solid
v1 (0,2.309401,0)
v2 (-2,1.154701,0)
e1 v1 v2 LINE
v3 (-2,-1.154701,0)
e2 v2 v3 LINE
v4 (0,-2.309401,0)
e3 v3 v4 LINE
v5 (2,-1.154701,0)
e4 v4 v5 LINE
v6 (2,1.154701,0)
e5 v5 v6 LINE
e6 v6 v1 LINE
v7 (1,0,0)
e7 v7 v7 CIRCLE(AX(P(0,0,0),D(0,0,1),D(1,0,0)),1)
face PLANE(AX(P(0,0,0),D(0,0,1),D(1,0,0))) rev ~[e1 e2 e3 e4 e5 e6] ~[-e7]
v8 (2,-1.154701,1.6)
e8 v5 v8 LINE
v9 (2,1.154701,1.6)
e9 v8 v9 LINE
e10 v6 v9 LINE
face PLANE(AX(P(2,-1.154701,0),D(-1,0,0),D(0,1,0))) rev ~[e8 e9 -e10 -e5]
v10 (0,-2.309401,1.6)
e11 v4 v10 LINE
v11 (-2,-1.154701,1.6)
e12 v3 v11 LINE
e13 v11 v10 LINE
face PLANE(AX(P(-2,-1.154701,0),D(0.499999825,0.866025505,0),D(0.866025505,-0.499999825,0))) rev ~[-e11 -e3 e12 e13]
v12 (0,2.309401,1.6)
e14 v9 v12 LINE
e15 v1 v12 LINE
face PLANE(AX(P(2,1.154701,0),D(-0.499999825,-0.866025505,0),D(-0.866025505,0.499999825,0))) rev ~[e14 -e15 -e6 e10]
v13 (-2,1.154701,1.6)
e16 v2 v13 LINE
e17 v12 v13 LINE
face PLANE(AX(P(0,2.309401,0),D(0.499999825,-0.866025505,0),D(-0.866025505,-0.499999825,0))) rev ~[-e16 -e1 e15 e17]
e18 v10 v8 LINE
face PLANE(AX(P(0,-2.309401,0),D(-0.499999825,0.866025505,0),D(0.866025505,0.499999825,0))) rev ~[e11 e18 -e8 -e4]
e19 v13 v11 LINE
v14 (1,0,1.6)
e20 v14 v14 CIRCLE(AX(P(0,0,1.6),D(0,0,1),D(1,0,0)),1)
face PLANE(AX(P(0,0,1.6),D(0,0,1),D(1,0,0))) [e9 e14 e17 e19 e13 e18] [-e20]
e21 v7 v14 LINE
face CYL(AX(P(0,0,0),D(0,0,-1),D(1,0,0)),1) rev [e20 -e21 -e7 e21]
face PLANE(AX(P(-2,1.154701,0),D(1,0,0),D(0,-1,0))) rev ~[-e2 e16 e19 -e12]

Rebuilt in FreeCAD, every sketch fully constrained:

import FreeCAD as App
import Part
import Sketcher
from FreeCAD import Vector
Q = App.Units.Quantity

doc = App.newDocument("Part")
params = doc.addObject("Spreadsheet::Sheet", "Params")
for row, (alias, value) in enumerate([
    ("sketch1_diameter", "2 mm"),
    ("pad1_length", "1.6 mm"),
], start=1):
    params.set(f"A{row}", alias)
    params.set(f"B{row}", "=" + value)
    params.setAlias(f"B{row}", alias)

body = doc.addObject("PartDesign::Body", "Body")

sketch1 = body.newObject("Sketcher::SketchObject", "Sketch")
sketch1.AttachmentSupport = (doc.getObject("XY_Plane"), [""])
sketch1.MapMode = "FlatFace"
sketch1.addGeometry([
    Part.LineSegment(Vector(2, 1.2, 0), Vector(0, 2.3, 0)),
    Part.LineSegment(Vector(0, 2.3, 0), Vector(-2, 1.2, 0)),
    Part.LineSegment(Vector(-2, 1.2, 0), Vector(-2, -1.2, 0)),
    Part.LineSegment(Vector(-2, -1.2, 0), Vector(0, -2.3, 0)),
    Part.LineSegment(Vector(0, -2.3, 0), Vector(2, -1.2, 0)),
    Part.LineSegment(Vector(2, -1.2, 0), Vector(2, 1.2, 0)),
    Part.Circle(Vector(0, 0, 0), Vector(0, 0, 1), 1),
], False)
sketch1.addConstraint([
    Sketcher.Constraint("Coincident", 0, 2, 1, 1),
    Sketcher.Constraint("Coincident", 1, 2, 2, 1),
    Sketcher.Constraint("Coincident", 2, 2, 3, 1),
    Sketcher.Constraint("Coincident", 3, 2, 4, 1),
    Sketcher.Constraint("Coincident", 4, 2, 5, 1),
    Sketcher.Constraint("Coincident", 5, 2, 0, 1),
    Sketcher.Constraint("Vertical", 2),
    Sketcher.Constraint("Vertical", 5),
    Sketcher.Constraint("Coincident", 6, 3, -1, 1),
    Sketcher.Constraint("Symmetric", 0, 2, 3, 2, -1, 1),
    Sketcher.Constraint("Symmetric", 1, 2, 4, 2, -1, 1),
    Sketcher.Constraint("PointOnObject", 0, 2, -2),
    Sketcher.Constraint("Parallel", 0, 3),
    Sketcher.Constraint("Horizontal", 2, 2, 4, 2),
    Sketcher.Constraint("Diameter", 6, 2.0),
    Sketcher.Constraint("Angle", 0, Q("150.000012 deg")),
    Sketcher.Constraint("DistanceX", 1, 2, -1, 1, 2.0),
    Sketcher.Constraint("DistanceY", 2, 2, 2, 1, 2.309402),
])
sketch1.setExpression("Constraints[14]", "Params.sketch1_diameter")
pad1 = body.newObject("PartDesign::Pad", "Pad")
pad1.Profile = sketch1
pad1.setExpression("Length", "Params.pad1_length")

doc.recompute()
